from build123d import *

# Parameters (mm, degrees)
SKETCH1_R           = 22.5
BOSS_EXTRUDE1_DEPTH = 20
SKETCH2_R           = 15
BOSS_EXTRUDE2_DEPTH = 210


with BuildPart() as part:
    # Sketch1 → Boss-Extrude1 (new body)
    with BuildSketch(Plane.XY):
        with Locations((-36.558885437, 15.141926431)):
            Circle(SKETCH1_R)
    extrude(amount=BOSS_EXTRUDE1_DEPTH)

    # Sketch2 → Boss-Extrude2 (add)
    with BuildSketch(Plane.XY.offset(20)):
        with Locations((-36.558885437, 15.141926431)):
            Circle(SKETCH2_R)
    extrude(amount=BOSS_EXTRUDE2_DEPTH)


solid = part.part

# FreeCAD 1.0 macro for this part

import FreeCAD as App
import Part
import Sketcher
from FreeCAD import Vector

doc = App.newDocument("Part")
body = doc.addObject("PartDesign::Body", "Body")

# Sketch on XY plane
sketch1 = body.newObject("Sketcher::SketchObject", "Sketch")
sketch1.AttachmentSupport = (doc.getObject("XY_Plane"), [""])
sketch1.MapMode = "FlatFace"
sketch1.addGeometry(Part.Circle(Vector(-37, 15, 0), Vector(0, 0, 1), 22), False)
sketch1.addConstraint([
    Sketcher.Constraint("Diameter", 0, 45.0),
    Sketcher.Constraint("DistanceX", 0, 3, -1, 1, 36.558885),
    Sketcher.Constraint("DistanceY", -1, 1, 0, 3, 15.141926),
])
pad1 = body.newObject("PartDesign::Pad", "Pad")
pad1.Profile = sketch1
pad1.Length = 20

# Sketch on XY plane
sketch2 = body.newObject("Sketcher::SketchObject", "Sketch001")
sketch2.AttachmentSupport = (doc.getObject("XY_Plane"), [""])
sketch2.MapMode = "FlatFace"
sketch2.AttachmentOffset = App.Placement(Vector(0, 0, 20), App.Rotation())
sketch2.addGeometry(Part.Circle(Vector(-37, 15, 0), Vector(0, 0, 1), 15), False)
sketch2.addConstraint([
    Sketcher.Constraint("Diameter", 0, 30.0),
    Sketcher.Constraint("DistanceX", 0, 3, -1, 1, 36.558885),
    Sketcher.Constraint("DistanceY", -1, 1, 0, 3, 15.141926),
])
pad2 = body.newObject("PartDesign::Pad", "Pad001")
pad2.Profile = sketch2
pad2.Length = 210

doc.recompute()
